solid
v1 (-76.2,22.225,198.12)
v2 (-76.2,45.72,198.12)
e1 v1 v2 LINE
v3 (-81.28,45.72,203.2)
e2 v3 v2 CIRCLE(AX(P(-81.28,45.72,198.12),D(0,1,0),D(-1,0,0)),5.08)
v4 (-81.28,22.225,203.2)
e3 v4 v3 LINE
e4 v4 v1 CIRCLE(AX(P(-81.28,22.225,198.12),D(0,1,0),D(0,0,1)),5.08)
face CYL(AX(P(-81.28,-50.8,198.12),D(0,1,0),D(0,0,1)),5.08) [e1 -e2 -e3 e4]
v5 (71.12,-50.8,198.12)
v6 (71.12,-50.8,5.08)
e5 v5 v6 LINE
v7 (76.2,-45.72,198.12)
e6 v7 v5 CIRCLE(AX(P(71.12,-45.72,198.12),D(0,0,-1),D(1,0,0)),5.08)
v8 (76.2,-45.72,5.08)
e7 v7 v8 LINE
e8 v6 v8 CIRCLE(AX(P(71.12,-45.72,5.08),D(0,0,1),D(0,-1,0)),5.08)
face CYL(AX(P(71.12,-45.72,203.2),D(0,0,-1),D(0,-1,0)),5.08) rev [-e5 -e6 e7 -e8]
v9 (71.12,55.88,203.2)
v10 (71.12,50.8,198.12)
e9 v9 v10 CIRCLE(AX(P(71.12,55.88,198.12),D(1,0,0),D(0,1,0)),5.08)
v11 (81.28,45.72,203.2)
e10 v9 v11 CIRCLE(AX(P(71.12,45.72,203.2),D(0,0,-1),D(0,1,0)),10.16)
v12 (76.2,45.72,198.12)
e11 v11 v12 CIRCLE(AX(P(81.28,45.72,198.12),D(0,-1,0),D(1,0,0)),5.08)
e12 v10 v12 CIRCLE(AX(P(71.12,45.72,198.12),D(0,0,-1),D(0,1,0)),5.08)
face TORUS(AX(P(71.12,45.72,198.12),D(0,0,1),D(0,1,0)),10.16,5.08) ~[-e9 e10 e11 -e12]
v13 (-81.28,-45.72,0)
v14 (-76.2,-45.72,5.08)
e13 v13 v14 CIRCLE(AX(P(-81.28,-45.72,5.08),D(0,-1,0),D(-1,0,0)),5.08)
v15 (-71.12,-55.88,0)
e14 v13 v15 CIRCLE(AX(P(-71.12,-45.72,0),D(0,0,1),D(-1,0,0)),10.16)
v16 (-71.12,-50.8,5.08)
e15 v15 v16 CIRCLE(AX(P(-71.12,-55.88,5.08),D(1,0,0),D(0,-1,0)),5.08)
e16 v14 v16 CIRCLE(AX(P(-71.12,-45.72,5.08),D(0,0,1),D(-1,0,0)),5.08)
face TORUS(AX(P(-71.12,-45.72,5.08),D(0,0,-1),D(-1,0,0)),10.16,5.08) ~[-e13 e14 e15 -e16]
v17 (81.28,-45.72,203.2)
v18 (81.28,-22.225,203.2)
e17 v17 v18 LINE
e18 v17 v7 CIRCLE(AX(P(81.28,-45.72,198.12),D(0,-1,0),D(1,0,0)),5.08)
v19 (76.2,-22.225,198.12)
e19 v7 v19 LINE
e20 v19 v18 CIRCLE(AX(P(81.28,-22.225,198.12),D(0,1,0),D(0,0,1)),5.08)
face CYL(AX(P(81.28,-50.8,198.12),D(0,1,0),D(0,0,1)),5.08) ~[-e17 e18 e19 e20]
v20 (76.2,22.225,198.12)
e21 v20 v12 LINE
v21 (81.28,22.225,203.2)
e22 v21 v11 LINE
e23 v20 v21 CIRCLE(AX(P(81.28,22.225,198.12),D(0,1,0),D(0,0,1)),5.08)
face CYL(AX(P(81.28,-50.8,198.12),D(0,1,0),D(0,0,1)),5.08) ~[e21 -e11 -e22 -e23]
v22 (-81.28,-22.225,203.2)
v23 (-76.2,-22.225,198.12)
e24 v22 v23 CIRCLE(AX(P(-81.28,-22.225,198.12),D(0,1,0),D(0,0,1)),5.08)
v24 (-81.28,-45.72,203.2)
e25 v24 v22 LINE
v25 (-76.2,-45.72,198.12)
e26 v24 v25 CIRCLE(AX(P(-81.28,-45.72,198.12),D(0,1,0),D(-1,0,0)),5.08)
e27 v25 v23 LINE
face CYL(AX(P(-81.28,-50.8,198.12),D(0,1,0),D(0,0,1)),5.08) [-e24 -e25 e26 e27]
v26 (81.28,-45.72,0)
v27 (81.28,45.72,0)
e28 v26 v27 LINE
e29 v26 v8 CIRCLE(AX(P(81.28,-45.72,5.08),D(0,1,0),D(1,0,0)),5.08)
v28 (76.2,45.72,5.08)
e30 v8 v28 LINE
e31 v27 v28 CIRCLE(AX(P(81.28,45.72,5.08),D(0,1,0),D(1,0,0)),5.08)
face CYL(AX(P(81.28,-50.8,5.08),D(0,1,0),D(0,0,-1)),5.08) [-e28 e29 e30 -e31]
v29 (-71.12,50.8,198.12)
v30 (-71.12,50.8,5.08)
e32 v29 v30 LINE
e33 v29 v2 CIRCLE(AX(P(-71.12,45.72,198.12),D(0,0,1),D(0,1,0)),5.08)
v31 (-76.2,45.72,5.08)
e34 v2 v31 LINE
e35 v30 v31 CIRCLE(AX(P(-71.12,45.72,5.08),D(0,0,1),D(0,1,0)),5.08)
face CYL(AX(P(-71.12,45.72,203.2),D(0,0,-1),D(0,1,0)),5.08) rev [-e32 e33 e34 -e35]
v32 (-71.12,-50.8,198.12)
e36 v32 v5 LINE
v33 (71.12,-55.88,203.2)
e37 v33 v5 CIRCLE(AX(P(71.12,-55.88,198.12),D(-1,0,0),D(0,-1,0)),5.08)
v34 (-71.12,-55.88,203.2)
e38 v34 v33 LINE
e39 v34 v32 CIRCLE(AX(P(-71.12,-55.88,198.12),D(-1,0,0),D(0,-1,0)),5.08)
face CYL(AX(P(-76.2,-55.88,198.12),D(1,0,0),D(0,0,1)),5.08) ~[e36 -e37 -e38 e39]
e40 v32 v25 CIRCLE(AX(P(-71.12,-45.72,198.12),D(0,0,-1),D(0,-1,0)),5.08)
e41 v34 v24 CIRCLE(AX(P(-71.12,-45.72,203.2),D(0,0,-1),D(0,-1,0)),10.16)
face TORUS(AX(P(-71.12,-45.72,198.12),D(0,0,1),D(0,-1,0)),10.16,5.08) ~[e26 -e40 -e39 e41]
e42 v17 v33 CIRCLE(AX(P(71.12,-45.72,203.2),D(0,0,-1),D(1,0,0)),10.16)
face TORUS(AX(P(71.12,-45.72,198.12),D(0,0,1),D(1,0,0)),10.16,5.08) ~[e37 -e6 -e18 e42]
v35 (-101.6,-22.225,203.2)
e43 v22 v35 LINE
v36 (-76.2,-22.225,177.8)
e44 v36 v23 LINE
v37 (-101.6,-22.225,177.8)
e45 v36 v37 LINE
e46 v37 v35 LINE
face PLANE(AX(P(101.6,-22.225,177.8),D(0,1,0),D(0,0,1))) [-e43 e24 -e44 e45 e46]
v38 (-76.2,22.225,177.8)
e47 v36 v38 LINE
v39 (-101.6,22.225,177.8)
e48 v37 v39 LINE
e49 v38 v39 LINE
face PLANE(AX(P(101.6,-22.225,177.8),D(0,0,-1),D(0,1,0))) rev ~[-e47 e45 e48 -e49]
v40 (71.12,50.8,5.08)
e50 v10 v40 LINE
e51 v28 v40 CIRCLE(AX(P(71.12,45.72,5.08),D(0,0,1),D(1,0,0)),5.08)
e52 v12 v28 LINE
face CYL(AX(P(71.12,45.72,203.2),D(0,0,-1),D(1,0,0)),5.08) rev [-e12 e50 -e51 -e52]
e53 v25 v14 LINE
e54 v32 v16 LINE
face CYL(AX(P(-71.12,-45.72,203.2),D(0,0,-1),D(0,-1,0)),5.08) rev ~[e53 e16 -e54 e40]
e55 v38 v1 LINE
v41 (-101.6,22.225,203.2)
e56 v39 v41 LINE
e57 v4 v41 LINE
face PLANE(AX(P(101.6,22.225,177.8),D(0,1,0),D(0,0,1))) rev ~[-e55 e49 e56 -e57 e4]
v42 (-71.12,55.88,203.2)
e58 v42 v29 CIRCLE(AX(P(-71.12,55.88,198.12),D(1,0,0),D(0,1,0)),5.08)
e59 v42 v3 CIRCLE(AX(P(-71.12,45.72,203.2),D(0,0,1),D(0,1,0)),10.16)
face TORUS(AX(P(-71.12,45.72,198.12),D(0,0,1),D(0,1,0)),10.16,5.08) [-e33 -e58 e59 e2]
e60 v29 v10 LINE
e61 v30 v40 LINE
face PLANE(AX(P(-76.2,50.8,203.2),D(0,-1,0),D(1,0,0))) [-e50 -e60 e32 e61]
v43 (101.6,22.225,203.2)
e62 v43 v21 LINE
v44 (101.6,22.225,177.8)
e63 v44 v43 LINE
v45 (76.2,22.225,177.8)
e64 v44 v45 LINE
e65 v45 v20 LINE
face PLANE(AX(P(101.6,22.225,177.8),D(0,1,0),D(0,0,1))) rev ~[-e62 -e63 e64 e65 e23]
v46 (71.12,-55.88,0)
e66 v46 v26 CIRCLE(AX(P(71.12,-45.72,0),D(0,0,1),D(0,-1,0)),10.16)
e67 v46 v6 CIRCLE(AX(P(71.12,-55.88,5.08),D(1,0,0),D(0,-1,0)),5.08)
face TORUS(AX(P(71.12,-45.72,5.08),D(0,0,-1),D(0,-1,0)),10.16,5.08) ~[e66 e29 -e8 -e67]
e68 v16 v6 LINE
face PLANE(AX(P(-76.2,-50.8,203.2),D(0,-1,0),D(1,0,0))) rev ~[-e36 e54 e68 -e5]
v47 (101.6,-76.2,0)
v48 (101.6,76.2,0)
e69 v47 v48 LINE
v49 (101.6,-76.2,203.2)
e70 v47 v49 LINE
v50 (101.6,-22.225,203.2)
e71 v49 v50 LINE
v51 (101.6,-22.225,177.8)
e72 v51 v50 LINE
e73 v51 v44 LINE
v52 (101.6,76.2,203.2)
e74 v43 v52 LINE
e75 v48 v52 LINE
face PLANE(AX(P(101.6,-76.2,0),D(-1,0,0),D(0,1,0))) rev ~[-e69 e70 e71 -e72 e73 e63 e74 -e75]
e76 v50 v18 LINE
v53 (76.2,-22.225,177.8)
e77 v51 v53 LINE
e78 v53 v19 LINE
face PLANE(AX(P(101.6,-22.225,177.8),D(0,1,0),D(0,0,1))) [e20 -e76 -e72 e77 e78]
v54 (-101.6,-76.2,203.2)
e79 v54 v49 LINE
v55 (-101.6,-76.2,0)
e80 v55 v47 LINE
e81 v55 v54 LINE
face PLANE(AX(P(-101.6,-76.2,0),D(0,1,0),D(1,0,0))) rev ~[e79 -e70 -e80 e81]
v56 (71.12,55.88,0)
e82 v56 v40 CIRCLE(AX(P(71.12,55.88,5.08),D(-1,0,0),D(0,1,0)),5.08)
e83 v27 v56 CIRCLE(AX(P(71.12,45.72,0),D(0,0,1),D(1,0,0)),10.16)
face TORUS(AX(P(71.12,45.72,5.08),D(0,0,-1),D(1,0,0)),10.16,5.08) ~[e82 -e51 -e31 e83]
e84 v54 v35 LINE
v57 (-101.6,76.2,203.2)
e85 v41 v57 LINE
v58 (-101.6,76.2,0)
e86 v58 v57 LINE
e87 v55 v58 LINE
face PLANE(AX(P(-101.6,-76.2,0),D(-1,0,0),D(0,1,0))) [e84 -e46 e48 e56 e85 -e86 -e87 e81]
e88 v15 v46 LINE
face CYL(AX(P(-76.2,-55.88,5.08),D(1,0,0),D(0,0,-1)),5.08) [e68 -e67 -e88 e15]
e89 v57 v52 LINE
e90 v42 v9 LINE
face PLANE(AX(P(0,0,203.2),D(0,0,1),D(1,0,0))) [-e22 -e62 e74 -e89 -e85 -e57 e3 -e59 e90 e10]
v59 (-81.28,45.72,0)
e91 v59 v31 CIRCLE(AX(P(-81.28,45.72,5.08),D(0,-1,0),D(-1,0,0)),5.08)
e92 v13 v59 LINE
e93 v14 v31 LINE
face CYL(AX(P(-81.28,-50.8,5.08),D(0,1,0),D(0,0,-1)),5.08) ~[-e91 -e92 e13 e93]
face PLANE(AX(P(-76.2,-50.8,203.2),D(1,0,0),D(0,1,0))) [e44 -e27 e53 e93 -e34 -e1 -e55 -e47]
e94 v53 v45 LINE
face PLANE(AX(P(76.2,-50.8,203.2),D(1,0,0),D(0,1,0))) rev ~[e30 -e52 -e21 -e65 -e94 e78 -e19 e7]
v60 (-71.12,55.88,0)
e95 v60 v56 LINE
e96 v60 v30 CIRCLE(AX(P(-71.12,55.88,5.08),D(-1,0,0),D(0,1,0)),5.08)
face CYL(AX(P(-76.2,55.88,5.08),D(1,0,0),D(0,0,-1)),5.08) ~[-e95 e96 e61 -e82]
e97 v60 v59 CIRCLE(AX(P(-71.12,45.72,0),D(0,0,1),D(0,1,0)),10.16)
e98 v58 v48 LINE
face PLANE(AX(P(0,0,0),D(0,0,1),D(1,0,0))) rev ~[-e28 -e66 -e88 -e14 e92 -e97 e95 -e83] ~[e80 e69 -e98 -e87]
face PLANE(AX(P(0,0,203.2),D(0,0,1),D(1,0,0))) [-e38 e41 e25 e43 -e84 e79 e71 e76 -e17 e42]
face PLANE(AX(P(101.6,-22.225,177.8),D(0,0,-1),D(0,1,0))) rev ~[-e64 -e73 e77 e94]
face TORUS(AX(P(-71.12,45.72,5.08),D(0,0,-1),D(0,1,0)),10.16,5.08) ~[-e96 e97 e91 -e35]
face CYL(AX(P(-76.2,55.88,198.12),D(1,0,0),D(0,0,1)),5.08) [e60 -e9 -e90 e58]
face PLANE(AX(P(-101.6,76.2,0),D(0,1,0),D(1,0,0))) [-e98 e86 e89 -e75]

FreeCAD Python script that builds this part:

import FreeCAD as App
import Part
import Sketcher
Q = App.Units.Quantity


def edges_at(feature, points):
    """Names of the edges that pass closest to the given points."""
    edges = feature.Shape.Edges
    near = lambda p: min(range(len(edges)), key=lambda i: edges[i].distToShape(Part.Vertex(*p))[0])
    return sorted({f"Edge{near(p) + 1}" for p in points})


def add_polygon(sketch, points):
    """Adds a closed chain of lines whose ends are joined by coincident constraints."""
    first, n = sketch.GeometryCount, len(points)
    for a, b in zip(points, points[1:] + points[:1]):
        sketch.addGeometry(Part.LineSegment(App.Vector(*a, 0), App.Vector(*b, 0)), False)
    for i in range(n):
        sketch.addConstraint(Sketcher.Constraint("Coincident", first + i, 2, first + (i + 1) % n, 1))

doc = App.newDocument("Part")
body = doc.addObject("PartDesign::Body", "Body")

# Sketch on XY plane
sketch1 = body.newObject("Sketcher::SketchObject", "Sketch")
sketch1.AttachmentSupport = (doc.getObject("XY_Plane"), [""])
sketch1.MapMode = "FlatFace"
add_polygon(sketch1, [(-102, 76), (-102, -76), (102, -76), (102, 76)])  # lines 0-3
sketch1.addConstraint(Sketcher.Constraint("Vertical", 0))
sketch1.addConstraint(Sketcher.Constraint("Horizontal", 1))
sketch1.addConstraint(Sketcher.Constraint("Vertical", 2))
sketch1.addConstraint(Sketcher.Constraint("Horizontal", 3))
sketch1.addConstraint(Sketcher.Constraint("Symmetric", 0, 2, 2, 2, -1, 1))
sketch1.addConstraint(Sketcher.Constraint("DistanceX", 1, 1, 1, 2, Q("8 in")))
sketch1.addConstraint(Sketcher.Constraint("DistanceY", 0, 2, 0, 1, Q("6 in")))
pad1 = body.newObject("PartDesign::Pad", "Pad")
pad1.Profile = sketch1
pad1.Length = Q("8 in")

# Sketch on XY plane
sketch2 = body.newObject("Sketcher::SketchObject", "Sketch001")
sketch2.AttachmentSupport = (doc.getObject("XY_Plane"), [""])
sketch2.MapMode = "FlatFace"
sketch2.AttachmentOffset = App.Placement(App.Vector(0, 0, 8 * 25.4), App.Rotation())
add_polygon(sketch2, [(-76, 51), (-76, -51), (76, -51), (76, 51)])  # lines 0-3
sketch2.addConstraint(Sketcher.Constraint("Vertical", 0))
sketch2.addConstraint(Sketcher.Constraint("Horizontal", 1))
sketch2.addConstraint(Sketcher.Constraint("Vertical", 2))
sketch2.addConstraint(Sketcher.Constraint("Horizontal", 3))
sketch2.addConstraint(Sketcher.Constraint("Symmetric", 0, 2, 2, 2, -1, 1))
sketch2.addConstraint(Sketcher.Constraint("DistanceX", 1, 1, 1, 2, Q("6 in")))
sketch2.addConstraint(Sketcher.Constraint("DistanceY", 0, 2, 0, 1, Q("4 in")))
pocket1 = body.newObject("PartDesign::Pocket", "Pocket")
pocket1.Profile = sketch2
pocket1.Type = "ThroughAll"
doc.recompute()

fillet = body.newObject("PartDesign::Fillet", "Fillet")
fillet.Base = (pocket1, edges_at(pocket1, [
    (-76.2, 0, 203.2),
    (-76.2, -50.8, 101.6),
    (-76.2, 0, 0),
    (-76.2, 50.8, 101.6),
    (0, -50.8, 203.2),
    (76.2, -50.8, 101.6),
    (0, -50.8, 0),
    (76.2, 0, 203.2),
    (76.2, 50.8, 101.6),
    (76.2, 0, 0),
    (0, 50.8, 203.2),
    (0, 50.8, 0),
]))
fillet.Radius = Q("0.2 in")

# Sketch on YZ plane
sketch3 = body.newObject("Sketcher::SketchObject", "Sketch002")
sketch3.AttachmentSupport = (doc.getObject("YZ_Plane"), [""])
sketch3.MapMode = "FlatFace"
sketch3.AttachmentOffset = App.Placement(App.Vector(0, 0, 4 * 25.4), App.Rotation())
add_polygon(sketch3, [(-22, 203), (-22, 178), (22, 178), (22, 203)])  # lines 0-3
sketch3.addConstraint(Sketcher.Constraint("Vertical", 0))
sketch3.addConstraint(Sketcher.Constraint("Horizontal", 1))
sketch3.addConstraint(Sketcher.Constraint("Vertical", 2))
sketch3.addConstraint(Sketcher.Constraint("Horizontal", 3))
sketch3.addConstraint(Sketcher.Constraint("DistanceY", 0, 2, 0, 1, Q("1 in")))
sketch3.addConstraint(Sketcher.Constraint("DistanceY", -1, 1, 0, 2, Q("7 in")))
sketch3.addConstraint(Sketcher.Constraint("DistanceX", 1, 1, 1, 2, Q("1.75 in")))
sketch3.addConstraint(Sketcher.Constraint("DistanceX", 0, 2, -1, 1, Q("0.875 in")))
pocket2 = body.newObject("PartDesign::Pocket", "Pocket001")
pocket2.Profile = sketch3
pocket2.Length = Q("8 in")

doc.recompute()
